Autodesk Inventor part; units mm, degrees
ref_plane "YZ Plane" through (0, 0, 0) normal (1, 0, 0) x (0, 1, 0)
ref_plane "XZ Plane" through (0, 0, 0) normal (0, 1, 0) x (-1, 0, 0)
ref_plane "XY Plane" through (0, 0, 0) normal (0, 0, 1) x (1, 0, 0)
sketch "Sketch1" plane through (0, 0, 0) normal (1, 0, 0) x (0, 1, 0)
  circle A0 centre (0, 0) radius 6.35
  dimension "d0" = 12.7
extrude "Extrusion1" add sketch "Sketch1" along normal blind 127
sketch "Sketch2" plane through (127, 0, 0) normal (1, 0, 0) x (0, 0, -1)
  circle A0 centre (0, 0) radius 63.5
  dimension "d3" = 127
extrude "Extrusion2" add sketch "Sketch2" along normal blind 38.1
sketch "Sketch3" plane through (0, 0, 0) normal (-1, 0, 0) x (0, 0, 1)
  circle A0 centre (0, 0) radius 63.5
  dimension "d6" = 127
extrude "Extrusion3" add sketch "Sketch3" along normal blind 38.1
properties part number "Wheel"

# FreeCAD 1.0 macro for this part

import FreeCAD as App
import Part
import Sketcher

V = App.Vector
Q = App.Units.Quantity

doc = App.newDocument("Part")
body = doc.addObject("PartDesign::Body", "Body")

sketch1 = doc.addObject("Sketcher::SketchObject", "Sketch")
body.addObject(sketch1)
sketch1.AttachmentSupport = (doc.YZ_Plane, [""])
sketch1.MapMode = "FlatFace"
sketch1.addGeometry(Part.Circle(V(0, 0, 0), V(0, 0, 1), 6), False)
sketch1.addConstraint(Sketcher.Constraint("Coincident", 0, 3, -1, 1))
sketch1.addConstraint(Sketcher.Constraint("Diameter", 0, Q("0.5 in")))
pad1 = doc.addObject("PartDesign::Pad", "Pad")
body.addObject(pad1)
pad1.Profile = sketch1
pad1.Length = Q("5 in")

sketch2 = doc.addObject("Sketcher::SketchObject", "Sketch001")
body.addObject(sketch2)
sketch2.AttachmentSupport = (doc.YZ_Plane, [""])
sketch2.MapMode = "FlatFace"
sketch2.AttachmentOffset = App.Placement(V(0, 0, 5 * 25.4), App.Rotation())
sketch2.addGeometry(Part.Circle(V(0, 0, 0), V(0, 0, 1), 64), False)
sketch2.addConstraint(Sketcher.Constraint("Coincident", 0, 3, -1, 1))
sketch2.addConstraint(Sketcher.Constraint("Diameter", 0, Q("5 in")))
pad2 = doc.addObject("PartDesign::Pad", "Pad001")
body.addObject(pad2)
pad2.Profile = sketch2
pad2.Length = Q("1.5 in")

sketch3 = doc.addObject("Sketcher::SketchObject", "Sketch002")
body.addObject(sketch3)
sketch3.AttachmentSupport = (doc.YZ_Plane, [""])
sketch3.MapMode = "FlatFace"
sketch3.addGeometry(Part.Circle(V(0, 0, 0), V(0, 0, 1), 64), False)
sketch3.addConstraint(Sketcher.Constraint("Coincident", 0, 3, -1, 1))
sketch3.addConstraint(Sketcher.Constraint("Diameter", 0, Q("5 in")))
pad3 = doc.addObject("PartDesign::Pad", "Pad002")
body.addObject(pad3)
pad3.Profile = sketch3
pad3.Length = Q("1.5 in")
pad3.Reversed = True

doc.recompute()
